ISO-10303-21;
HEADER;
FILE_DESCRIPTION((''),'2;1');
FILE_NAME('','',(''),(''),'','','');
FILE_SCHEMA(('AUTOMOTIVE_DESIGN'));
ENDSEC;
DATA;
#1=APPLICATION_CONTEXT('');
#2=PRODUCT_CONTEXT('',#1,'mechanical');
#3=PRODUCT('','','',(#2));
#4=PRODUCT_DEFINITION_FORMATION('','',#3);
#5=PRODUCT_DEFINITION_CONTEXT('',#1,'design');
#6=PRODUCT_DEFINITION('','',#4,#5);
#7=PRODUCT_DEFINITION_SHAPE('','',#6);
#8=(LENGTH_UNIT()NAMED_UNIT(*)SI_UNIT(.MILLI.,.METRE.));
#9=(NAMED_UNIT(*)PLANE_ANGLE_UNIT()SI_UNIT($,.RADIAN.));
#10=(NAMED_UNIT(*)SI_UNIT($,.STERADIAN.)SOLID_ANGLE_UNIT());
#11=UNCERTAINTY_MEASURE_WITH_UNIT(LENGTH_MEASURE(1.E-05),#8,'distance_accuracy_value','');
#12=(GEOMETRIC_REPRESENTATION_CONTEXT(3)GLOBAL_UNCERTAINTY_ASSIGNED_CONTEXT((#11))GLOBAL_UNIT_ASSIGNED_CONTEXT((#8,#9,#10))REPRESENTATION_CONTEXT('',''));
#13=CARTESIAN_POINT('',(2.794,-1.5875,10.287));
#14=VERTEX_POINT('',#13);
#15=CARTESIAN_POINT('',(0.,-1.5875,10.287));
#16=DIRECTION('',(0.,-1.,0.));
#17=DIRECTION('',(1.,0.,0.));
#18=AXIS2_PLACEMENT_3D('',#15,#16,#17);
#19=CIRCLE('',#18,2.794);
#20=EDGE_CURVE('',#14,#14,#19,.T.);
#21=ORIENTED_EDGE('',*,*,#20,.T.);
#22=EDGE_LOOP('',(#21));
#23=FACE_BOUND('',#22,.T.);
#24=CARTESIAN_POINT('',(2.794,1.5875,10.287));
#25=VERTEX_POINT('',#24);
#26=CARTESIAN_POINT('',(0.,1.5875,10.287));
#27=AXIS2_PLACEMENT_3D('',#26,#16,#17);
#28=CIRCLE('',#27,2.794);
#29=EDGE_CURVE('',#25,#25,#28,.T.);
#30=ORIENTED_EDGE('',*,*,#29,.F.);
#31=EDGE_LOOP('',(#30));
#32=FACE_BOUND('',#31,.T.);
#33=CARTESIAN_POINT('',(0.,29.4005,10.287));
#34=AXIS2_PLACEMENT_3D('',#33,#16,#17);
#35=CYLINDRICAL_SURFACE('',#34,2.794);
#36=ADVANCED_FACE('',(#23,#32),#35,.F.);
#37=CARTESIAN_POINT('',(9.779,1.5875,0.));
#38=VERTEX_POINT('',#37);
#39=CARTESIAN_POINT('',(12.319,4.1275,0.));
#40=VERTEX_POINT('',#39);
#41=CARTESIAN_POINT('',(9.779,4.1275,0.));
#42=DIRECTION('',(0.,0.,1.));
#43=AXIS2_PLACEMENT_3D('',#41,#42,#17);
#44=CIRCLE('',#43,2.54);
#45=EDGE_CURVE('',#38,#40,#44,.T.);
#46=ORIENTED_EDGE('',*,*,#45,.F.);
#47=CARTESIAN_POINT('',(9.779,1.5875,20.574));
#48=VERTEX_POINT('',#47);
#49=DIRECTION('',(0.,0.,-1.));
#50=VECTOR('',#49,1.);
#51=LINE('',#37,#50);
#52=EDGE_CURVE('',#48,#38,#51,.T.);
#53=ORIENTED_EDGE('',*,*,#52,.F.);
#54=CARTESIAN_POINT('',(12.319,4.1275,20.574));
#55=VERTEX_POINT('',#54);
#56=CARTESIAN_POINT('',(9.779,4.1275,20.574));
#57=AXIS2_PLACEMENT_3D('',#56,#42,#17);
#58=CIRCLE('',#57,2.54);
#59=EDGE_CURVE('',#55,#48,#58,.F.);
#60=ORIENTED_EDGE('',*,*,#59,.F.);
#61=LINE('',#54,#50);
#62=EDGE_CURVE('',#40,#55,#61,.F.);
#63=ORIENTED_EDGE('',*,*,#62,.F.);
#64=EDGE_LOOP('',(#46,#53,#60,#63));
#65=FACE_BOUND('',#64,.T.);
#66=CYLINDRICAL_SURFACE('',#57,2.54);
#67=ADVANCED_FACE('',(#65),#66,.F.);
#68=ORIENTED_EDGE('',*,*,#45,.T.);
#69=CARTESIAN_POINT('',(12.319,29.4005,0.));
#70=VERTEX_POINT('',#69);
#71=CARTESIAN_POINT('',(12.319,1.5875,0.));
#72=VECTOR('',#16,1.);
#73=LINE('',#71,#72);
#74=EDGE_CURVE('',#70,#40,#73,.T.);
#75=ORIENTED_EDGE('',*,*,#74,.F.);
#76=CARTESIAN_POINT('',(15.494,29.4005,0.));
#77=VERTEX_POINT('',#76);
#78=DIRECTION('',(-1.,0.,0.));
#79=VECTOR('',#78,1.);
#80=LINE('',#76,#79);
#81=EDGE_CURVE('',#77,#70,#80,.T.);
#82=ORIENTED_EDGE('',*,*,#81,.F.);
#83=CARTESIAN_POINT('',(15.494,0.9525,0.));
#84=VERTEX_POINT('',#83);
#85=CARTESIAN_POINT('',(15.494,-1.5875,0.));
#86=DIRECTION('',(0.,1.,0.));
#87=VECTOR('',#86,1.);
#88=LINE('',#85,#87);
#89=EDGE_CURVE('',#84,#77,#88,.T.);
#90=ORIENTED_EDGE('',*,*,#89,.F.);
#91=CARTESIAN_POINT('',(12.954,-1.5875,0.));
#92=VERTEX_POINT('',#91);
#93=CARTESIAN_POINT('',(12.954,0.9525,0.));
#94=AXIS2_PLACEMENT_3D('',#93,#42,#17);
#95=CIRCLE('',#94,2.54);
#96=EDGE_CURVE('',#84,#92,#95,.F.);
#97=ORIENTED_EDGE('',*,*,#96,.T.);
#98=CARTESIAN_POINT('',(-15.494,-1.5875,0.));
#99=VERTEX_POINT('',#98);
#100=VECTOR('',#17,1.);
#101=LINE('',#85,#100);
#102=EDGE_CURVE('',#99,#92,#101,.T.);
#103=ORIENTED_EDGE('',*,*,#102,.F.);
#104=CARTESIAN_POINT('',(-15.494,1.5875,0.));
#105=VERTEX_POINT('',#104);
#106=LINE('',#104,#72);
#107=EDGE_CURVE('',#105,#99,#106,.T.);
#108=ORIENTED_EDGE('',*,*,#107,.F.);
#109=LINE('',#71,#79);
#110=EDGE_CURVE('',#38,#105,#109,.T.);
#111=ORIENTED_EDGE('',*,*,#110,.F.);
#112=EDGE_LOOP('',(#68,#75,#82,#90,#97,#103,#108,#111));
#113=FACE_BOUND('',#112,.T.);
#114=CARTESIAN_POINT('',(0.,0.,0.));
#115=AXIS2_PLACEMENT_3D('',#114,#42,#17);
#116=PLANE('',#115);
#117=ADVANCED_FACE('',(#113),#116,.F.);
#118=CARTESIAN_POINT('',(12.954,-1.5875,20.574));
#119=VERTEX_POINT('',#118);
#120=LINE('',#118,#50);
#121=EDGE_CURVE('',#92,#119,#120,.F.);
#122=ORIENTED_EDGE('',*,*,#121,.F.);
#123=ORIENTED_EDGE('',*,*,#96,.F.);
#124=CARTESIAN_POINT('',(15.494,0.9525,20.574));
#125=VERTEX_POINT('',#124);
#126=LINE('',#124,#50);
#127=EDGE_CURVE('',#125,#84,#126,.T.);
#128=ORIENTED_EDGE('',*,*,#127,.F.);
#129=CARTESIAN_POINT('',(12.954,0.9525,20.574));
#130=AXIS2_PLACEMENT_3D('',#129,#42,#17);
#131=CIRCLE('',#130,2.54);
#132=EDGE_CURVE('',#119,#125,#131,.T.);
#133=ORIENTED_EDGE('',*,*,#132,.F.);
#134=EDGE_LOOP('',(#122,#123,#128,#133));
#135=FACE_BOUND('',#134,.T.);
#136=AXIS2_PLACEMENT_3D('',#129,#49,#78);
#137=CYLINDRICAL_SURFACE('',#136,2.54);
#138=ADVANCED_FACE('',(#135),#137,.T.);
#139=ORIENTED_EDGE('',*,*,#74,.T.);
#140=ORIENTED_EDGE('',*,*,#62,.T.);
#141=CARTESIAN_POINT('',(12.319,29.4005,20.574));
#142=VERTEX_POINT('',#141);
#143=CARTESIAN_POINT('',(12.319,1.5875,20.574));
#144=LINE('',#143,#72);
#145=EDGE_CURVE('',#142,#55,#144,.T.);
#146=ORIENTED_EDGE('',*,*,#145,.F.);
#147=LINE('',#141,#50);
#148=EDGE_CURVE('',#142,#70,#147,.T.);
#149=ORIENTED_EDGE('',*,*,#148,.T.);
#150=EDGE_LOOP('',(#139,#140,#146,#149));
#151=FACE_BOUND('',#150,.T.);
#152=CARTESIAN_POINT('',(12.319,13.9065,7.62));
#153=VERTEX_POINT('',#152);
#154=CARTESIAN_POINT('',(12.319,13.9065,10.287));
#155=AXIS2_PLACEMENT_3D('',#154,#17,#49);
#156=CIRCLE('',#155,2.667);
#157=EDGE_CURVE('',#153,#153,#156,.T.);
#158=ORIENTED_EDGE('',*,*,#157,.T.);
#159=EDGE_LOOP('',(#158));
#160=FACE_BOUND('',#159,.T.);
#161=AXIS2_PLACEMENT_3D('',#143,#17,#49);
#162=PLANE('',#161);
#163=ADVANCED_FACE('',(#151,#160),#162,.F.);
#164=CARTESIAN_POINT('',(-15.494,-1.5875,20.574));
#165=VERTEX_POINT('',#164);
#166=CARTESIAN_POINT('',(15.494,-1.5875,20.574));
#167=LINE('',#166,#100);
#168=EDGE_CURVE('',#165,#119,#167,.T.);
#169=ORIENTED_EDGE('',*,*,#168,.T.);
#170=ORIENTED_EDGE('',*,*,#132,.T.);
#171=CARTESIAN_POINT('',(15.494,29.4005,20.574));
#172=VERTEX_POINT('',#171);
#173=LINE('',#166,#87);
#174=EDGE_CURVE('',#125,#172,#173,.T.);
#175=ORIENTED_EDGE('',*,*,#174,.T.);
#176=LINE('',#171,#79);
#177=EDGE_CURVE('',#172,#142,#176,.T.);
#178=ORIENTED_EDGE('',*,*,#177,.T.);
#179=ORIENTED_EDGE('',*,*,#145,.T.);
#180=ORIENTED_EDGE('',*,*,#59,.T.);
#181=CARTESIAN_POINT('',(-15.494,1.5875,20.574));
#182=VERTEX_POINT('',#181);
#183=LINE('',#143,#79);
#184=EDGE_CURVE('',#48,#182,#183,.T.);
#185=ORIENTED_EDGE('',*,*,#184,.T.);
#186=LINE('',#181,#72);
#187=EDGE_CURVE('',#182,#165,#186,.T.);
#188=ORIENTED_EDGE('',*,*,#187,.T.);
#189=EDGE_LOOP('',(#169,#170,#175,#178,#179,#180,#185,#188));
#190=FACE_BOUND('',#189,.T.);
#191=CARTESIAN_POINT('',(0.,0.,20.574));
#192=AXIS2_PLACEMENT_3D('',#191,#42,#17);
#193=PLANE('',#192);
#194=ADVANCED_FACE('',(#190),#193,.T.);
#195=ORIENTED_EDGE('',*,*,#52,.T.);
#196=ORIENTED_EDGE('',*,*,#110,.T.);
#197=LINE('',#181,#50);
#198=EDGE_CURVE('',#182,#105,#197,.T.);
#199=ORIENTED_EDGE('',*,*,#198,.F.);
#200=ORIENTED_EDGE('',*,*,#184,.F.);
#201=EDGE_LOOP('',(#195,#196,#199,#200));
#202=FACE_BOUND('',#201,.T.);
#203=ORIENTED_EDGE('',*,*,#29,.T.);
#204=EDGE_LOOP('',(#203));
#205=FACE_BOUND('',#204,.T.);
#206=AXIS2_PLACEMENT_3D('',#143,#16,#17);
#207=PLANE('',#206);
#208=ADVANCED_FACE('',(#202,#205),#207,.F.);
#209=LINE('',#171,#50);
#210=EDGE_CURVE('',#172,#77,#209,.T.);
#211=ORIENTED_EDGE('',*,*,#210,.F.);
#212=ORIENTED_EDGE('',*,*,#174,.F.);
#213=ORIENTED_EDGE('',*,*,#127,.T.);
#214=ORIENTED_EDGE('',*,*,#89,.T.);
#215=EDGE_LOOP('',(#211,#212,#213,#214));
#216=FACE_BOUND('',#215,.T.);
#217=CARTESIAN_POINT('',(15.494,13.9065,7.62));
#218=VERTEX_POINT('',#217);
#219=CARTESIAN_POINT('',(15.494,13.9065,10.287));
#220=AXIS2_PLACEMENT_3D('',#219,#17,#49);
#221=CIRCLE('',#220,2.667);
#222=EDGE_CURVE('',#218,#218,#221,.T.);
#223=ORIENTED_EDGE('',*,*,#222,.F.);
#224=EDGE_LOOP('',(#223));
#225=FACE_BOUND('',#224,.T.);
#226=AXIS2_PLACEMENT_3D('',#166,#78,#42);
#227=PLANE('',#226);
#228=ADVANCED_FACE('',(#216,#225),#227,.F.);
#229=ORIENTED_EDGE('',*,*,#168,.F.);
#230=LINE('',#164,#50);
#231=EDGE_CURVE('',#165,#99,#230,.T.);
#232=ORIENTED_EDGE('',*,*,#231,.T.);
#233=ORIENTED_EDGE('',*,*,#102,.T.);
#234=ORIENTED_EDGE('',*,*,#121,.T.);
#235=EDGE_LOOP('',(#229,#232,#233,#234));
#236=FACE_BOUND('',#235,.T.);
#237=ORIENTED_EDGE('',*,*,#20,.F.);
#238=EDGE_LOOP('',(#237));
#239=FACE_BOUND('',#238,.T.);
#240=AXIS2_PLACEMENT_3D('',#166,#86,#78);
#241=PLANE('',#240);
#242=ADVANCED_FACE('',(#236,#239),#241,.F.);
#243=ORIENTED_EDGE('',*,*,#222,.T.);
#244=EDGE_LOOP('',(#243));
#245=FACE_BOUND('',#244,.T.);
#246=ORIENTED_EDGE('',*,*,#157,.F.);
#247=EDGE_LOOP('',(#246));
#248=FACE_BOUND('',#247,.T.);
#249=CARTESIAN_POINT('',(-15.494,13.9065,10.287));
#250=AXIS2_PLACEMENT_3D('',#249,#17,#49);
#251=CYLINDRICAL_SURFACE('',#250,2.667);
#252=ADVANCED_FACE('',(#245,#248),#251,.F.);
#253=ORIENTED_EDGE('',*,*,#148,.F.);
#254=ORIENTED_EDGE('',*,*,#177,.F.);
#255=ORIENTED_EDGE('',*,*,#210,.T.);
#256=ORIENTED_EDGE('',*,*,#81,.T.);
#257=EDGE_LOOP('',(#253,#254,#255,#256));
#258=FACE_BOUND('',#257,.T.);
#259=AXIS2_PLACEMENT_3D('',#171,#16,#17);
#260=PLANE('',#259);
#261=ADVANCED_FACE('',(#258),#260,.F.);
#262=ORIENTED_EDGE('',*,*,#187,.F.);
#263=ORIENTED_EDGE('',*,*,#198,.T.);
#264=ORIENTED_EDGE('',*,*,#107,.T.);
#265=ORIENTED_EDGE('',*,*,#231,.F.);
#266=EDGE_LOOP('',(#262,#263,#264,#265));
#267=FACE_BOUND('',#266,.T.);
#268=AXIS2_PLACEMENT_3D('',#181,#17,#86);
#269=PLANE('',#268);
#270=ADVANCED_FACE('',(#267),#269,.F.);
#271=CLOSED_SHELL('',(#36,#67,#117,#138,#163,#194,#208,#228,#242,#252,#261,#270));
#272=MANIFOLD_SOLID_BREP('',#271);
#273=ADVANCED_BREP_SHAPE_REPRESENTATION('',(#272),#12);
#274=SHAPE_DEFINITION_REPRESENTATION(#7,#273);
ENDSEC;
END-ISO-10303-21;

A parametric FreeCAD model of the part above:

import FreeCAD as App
import Part
import Sketcher
from FreeCAD import Vector
Q = App.Units.Quantity


def edges_at(feature, points):
    """Names of the edges that pass closest to the given points."""
    edges = feature.Shape.Edges
    near = lambda p: min(range(len(edges)), key=lambda i: edges[i].distToShape(Part.Vertex(*p))[0])
    return sorted({f"Edge{near(p) + 1}" for p in points})

doc = App.newDocument("Part")
body = doc.addObject("PartDesign::Body", "Body")

# Sketch on XY plane
sketch1 = body.newObject("Sketcher::SketchObject", "Sketch")
sketch1.AttachmentSupport = (doc.getObject("XY_Plane"), [""])
sketch1.MapMode = "FlatFace"
sketch1.addGeometry([
    Part.LineSegment(Vector(12.319, 29.4005, 0), Vector(12.319, 1.5875, 0)),  # 0
    Part.LineSegment(Vector(12.319, 1.5875, 0), Vector(-15.494, 1.5875, 0)),  # 1
    Part.LineSegment(Vector(-15.494, 1.5875, 0), Vector(-15.494, -1.5875, 0)),  # 2
    Part.LineSegment(Vector(-15.494, -1.5875, 0), Vector(15.494, -1.5875, 0)),  # 3
    Part.LineSegment(Vector(15.494, -1.5875, 0), Vector(15.494, 29.4005, 0)),  # 4
    Part.LineSegment(Vector(15.494, 29.4005, 0), Vector(12.319, 29.4005, 0)),  # 5
], False)
sketch1.addConstraint([
    Sketcher.Constraint("Coincident", 0, 2, 1, 1),
    Sketcher.Constraint("Coincident", 1, 2, 2, 1),
    Sketcher.Constraint("Coincident", 2, 2, 3, 1),
    Sketcher.Constraint("Coincident", 3, 2, 4, 1),
    Sketcher.Constraint("Coincident", 4, 2, 5, 1),
    Sketcher.Constraint("Coincident", 5, 2, 0, 1),
    Sketcher.Constraint("Vertical", 0),
    Sketcher.Constraint("Horizontal", 1),
    Sketcher.Constraint("Vertical", 2),
    Sketcher.Constraint("Horizontal", 3),
    Sketcher.Constraint("Vertical", 4),
    Sketcher.Constraint("Horizontal", 5),
    Sketcher.Constraint("Symmetric", 1, 2, 3, 2, -1, 1),
    Sketcher.Constraint("Equal", 1, 0),
    Sketcher.Constraint("Equal", 5, 2),
    Sketcher.Constraint("DistanceX", 3, 1, 3, 2, Q("1.22 in")),
    Sketcher.Constraint("DistanceX", 1, 2, 1, 1, Q("1.095 in")),
])
pad1 = body.newObject("PartDesign::Pad", "Pad")
pad1.Profile = sketch1
pad1.Length = Q("0.81 in")
doc.recompute()

fillet = body.newObject("PartDesign::Fillet", "Fillet")
fillet.Base = (pad1, edges_at(pad1, [(12.319, 1.587, 10.287)]))
fillet.Radius = Q("0.1 in")
doc.recompute()

fillet2 = body.newObject("PartDesign::Fillet", "Fillet001")
fillet2.Base = (fillet, edges_at(fillet, [(15.494, -1.587, 10.287)]))
fillet2.Radius = Q("0.1 in")

# Sketch on YZ plane
sketch2 = body.newObject("Sketcher::SketchObject", "Sketch001")
sketch2.AttachmentSupport = (doc.getObject("YZ_Plane"), [""])
sketch2.MapMode = "FlatFace"
sketch2.AttachmentOffset = App.Placement(Vector(0, 0, 0.61 * 25.4), App.Rotation())
sketch2.addGeometry(Part.Circle(Vector(13.9065, 10.287, 0), Vector(0, 0, 1), 2.667), False)
sketch2.addConstraint([
    Sketcher.Constraint("Diameter", 0, Q("0.21 in")),
    Sketcher.Constraint("DistanceY", -1, 1, 0, 3, Q("0.405 in")),
    Sketcher.Constraint("DistanceX", -1, 1, 0, 3, Q("0.5475 in")),
])
pocket1 = body.newObject("PartDesign::Pocket", "Pocket")
pocket1.Profile = sketch2
pocket1.Type = "ThroughAll"

# Sketch on XZ plane
sketch3 = body.newObject("Sketcher::SketchObject", "Sketch002")
sketch3.AttachmentSupport = (doc.getObject("XZ_Plane"), [""])
sketch3.MapMode = "FlatFace"
sketch3.AttachmentOffset = App.Placement(Vector(0, 0, 0.0625 * 25.4), App.Rotation())
sketch3.addGeometry(Part.Circle(Vector(0, 10.287, 0), Vector(0, 0, 1), 2.794), False)
sketch3.addConstraint([
    Sketcher.Constraint("PointOnObject", 0, 3, -2),
    Sketcher.Constraint("Diameter", 0, Q("0.22 in")),
    Sketcher.Constraint("DistanceY", -1, 1, 0, 3, Q("0.405 in")),
])
pocket2 = body.newObject("PartDesign::Pocket", "Pocket001")
pocket2.Profile = sketch3
pocket2.Type = "ThroughAll"

doc.recompute()
